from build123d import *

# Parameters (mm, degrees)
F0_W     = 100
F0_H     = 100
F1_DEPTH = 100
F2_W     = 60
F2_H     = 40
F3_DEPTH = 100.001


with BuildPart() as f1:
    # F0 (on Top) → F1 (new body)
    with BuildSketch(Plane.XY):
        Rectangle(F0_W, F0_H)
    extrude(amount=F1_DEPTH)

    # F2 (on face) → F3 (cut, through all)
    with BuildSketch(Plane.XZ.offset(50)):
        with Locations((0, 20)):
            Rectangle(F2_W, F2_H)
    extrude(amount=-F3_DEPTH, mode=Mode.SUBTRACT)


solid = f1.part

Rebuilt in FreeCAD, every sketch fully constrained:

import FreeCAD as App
import Part
import Sketcher


def add_polygon(sketch, points):
    """Adds a closed chain of lines whose ends are joined by coincident constraints."""
    first, n = sketch.GeometryCount, len(points)
    for a, b in zip(points, points[1:] + points[:1]):
        sketch.addGeometry(Part.LineSegment(App.Vector(*a, 0), App.Vector(*b, 0)), False)
    for i in range(n):
        sketch.addConstraint(Sketcher.Constraint("Coincident", first + i, 2, first + (i + 1) % n, 1))

doc = App.newDocument("Part")
body = doc.addObject("PartDesign::Body", "Body")

# Sketch on XY plane
sketch1 = body.newObject("Sketcher::SketchObject", "Sketch")
sketch1.AttachmentSupport = (doc.getObject("XY_Plane"), [""])
sketch1.MapMode = "FlatFace"
add_polygon(sketch1, [(-50, 50), (-50, -50), (50, -50), (50, 50)])  # lines 0-3
sketch1.addConstraint(Sketcher.Constraint("Vertical", 0))
sketch1.addConstraint(Sketcher.Constraint("Horizontal", 1))
sketch1.addConstraint(Sketcher.Constraint("Vertical", 2))
sketch1.addConstraint(Sketcher.Constraint("Horizontal", 3))
sketch1.addConstraint(Sketcher.Constraint("Symmetric", 0, 2, 2, 2, -1, 1))
sketch1.addConstraint(Sketcher.Constraint("Equal", 3, 0))
sketch1.addConstraint(Sketcher.Constraint("DistanceX", 1, 1, 1, 2, 100.0))
pad1 = body.newObject("PartDesign::Pad", "Pad")
pad1.Profile = sketch1
pad1.Length = 100

# Sketch on XZ plane
sketch2 = body.newObject("Sketcher::SketchObject", "Sketch001")
sketch2.AttachmentSupport = (doc.getObject("XZ_Plane"), [""])
sketch2.MapMode = "FlatFace"
sketch2.AttachmentOffset = App.Placement(App.Vector(0, 0, 50), App.Rotation())
add_polygon(sketch2, [(-30, 40), (-30, 0), (30, 0), (30, 40)])  # lines 0-3
sketch2.addConstraint(Sketcher.Constraint("Vertical", 0))
sketch2.addConstraint(Sketcher.Constraint("Horizontal", 1))
sketch2.addConstraint(Sketcher.Constraint("Vertical", 2))
sketch2.addConstraint(Sketcher.Constraint("Horizontal", 3))
sketch2.addConstraint(Sketcher.Constraint("Symmetric", 0, 2, 1, 2, -1, 1))
sketch2.addConstraint(Sketcher.Constraint("DistanceX", 1, 1, 1, 2, 60.0))
sketch2.addConstraint(Sketcher.Constraint("DistanceY", 0, 2, 0, 1, 40.0))
pocket1 = body.newObject("PartDesign::Pocket", "Pocket")
pocket1.Profile = sketch2
pocket1.Type = "ThroughAll"

doc.recompute()
